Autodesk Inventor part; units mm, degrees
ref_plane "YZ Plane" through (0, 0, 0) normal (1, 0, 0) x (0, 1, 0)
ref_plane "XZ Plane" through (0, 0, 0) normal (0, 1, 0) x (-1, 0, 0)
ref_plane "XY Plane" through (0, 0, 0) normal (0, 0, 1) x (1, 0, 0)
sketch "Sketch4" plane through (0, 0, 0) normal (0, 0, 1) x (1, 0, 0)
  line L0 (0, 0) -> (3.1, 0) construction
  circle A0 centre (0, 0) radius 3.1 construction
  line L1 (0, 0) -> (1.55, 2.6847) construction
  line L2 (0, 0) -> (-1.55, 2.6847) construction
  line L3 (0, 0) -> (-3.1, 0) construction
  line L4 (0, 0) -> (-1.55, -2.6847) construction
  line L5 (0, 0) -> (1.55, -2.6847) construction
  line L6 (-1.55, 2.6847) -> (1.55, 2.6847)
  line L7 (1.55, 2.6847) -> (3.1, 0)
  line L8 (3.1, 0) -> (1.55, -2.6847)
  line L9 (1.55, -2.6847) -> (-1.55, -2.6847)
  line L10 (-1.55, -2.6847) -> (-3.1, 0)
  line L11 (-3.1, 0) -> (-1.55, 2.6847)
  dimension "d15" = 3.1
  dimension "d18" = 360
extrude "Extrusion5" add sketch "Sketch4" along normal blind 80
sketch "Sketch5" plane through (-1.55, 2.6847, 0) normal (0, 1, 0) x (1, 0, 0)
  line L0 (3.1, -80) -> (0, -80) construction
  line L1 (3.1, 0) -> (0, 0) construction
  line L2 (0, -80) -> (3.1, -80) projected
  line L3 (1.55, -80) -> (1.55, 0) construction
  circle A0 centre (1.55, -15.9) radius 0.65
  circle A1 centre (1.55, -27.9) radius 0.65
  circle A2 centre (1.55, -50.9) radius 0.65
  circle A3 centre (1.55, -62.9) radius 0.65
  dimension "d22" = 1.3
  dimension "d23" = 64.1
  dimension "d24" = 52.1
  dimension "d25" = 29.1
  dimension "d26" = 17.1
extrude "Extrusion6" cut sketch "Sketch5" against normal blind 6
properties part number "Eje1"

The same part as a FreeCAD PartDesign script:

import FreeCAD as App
import Part
import Sketcher
from FreeCAD import Vector

doc = App.newDocument("Part")
body = doc.addObject("PartDesign::Body", "Body")

sketch1 = body.newObject("Sketcher::SketchObject", "Sketch")
sketch1.AttachmentSupport = (doc.getObject("XY_Plane"), [""])
sketch1.MapMode = "FlatFace"
sketch1.addGeometry([
    Part.LineSegment(Vector(1.6, 2.7, 0), Vector(-1.6, 2.7, 0)),
    Part.LineSegment(Vector(-1.6, 2.7, 0), Vector(-3.1, 0, 0)),
    Part.LineSegment(Vector(-3.1, 0, 0), Vector(-1.6, -2.7, 0)),
    Part.LineSegment(Vector(-1.6, -2.7, 0), Vector(1.6, -2.7, 0)),
    Part.LineSegment(Vector(1.6, -2.7, 0), Vector(3.1, 0, 0)),
    Part.LineSegment(Vector(3.1, 0, 0), Vector(1.6, 2.7, 0)),
], False)
sketch1.addConstraint([
    Sketcher.Constraint("Coincident", 0, 2, 1, 1),
    Sketcher.Constraint("Coincident", 1, 2, 2, 1),
    Sketcher.Constraint("Coincident", 2, 2, 3, 1),
    Sketcher.Constraint("Coincident", 3, 2, 4, 1),
    Sketcher.Constraint("Coincident", 4, 2, 5, 1),
    Sketcher.Constraint("Coincident", 5, 2, 0, 1),
    Sketcher.Constraint("Horizontal", 0),
    Sketcher.Constraint("Horizontal", 3),
    Sketcher.Constraint("Symmetric", 0, 2, 3, 2, -1, 1),
    Sketcher.Constraint("Symmetric", 1, 2, 4, 2, -1, 1),
    Sketcher.Constraint("PointOnObject", 1, 2, -1),
    Sketcher.Constraint("Parallel", 2, 5),
    Sketcher.Constraint("Vertical", 0, 2, 2, 2),
    Sketcher.Constraint("DistanceX", 0, 2, 0, 1, 3.1),
    Sketcher.Constraint("Distance", 1, 3.1),
    Sketcher.Constraint("DistanceX", 1, 2, -1, 1, 3.1),
])
pad1 = body.newObject("PartDesign::Pad", "Pad")
pad1.Profile = sketch1
pad1.Length = 80

sketch2 = body.newObject("Sketcher::SketchObject", "Sketch001")
sketch2.AttachmentSupport = (doc.getObject("XZ_Plane"), [""])
sketch2.MapMode = "FlatFace"
sketch2.AttachmentOffset = App.Placement(Vector(0, 0, -2.6847), App.Rotation())
sketch2.addGeometry([
    Part.Circle(Vector(0, 15.9, 0), Vector(0, 0, 1), 0.7),
    Part.Circle(Vector(0, 27.9, 0), Vector(0, 0, 1), 0.7),
    Part.Circle(Vector(0, 50.9, 0), Vector(0, 0, 1), 0.7),
    Part.Circle(Vector(0, 62.9, 0), Vector(0, 0, 1), 0.7),
], False)
sketch2.addConstraint([
    Sketcher.Constraint("Equal", 0, 1),
    Sketcher.Constraint("Equal", 1, 2),
    Sketcher.Constraint("Equal", 2, 3),
    Sketcher.Constraint("PointOnObject", 0, 3, -2),
    Sketcher.Constraint("PointOnObject", 1, 3, -2),
    Sketcher.Constraint("PointOnObject", 2, 3, -2),
    Sketcher.Constraint("PointOnObject", 3, 3, -2),
    Sketcher.Constraint("Diameter", 0, 1.3),
    Sketcher.Constraint("DistanceY", 0, 3, 1, 3, 12.0),
    Sketcher.Constraint("DistanceY", 1, 3, 2, 3, 23.0),
    Sketcher.Constraint("DistanceY", 2, 3, 3, 3, 12.0),
    Sketcher.Constraint("DistanceY", -1, 1, 0, 3, 15.9),
])
pocket1 = body.newObject("PartDesign::Pocket", "Pocket")
pocket1.Profile = sketch2
pocket1.Length = 6
pocket1.Reversed = True

doc.recompute()
